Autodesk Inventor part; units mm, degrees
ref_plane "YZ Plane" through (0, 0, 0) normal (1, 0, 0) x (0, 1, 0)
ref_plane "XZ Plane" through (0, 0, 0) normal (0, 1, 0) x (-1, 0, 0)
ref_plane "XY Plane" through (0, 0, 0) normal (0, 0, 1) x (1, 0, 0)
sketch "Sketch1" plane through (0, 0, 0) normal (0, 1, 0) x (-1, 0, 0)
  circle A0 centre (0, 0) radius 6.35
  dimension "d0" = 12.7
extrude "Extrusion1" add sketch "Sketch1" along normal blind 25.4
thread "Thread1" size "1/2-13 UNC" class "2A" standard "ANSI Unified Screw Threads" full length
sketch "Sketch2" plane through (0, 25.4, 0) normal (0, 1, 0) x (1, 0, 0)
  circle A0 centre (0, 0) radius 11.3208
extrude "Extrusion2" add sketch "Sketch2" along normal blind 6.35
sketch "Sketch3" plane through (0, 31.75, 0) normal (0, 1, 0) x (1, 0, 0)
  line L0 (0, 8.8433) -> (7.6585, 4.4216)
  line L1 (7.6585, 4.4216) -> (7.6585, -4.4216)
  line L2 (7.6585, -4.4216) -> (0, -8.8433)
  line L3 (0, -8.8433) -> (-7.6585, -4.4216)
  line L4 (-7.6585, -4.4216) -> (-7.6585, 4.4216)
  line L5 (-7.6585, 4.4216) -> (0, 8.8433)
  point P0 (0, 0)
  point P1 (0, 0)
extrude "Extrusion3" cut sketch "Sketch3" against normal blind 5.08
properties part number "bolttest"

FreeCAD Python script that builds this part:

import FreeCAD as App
import Part
import Sketcher

V = App.Vector
Q = App.Units.Quantity


def add_polygon(sketch, points):
    """Adds a closed chain of lines whose ends are joined by coincident constraints."""
    first, n = sketch.GeometryCount, len(points)
    for a, b in zip(points, points[1:] + points[:1]):
        sketch.addGeometry(Part.LineSegment(App.Vector(*a, 0), App.Vector(*b, 0)), False)
    for i in range(n):
        sketch.addConstraint(Sketcher.Constraint("Coincident", first + i, 2, first + (i + 1) % n, 1))

doc = App.newDocument("Part")
body = doc.addObject("PartDesign::Body", "Body")

# Sketch on XZ plane
sketch1 = doc.addObject("Sketcher::SketchObject", "Sketch")
body.addObject(sketch1)
sketch1.AttachmentSupport = (doc.XZ_Plane, [""])
sketch1.MapMode = "FlatFace"
sketch1.addGeometry(Part.Circle(V(0, 0, 0), V(0, 0, 1), 6), False)
sketch1.addConstraint([
    Sketcher.Constraint("Coincident", 0, 3, -1, 1),
    Sketcher.Constraint("Diameter", 0, Q("0.5 in")),
])
pad1 = doc.addObject("PartDesign::Pad", "Pad")
body.addObject(pad1)
pad1.Profile = sketch1
pad1.Length = Q("1 in")
pad1.Reversed = True

# Sketch on XZ plane
sketch2 = doc.addObject("Sketcher::SketchObject", "Sketch001")
body.addObject(sketch2)
sketch2.AttachmentSupport = (doc.XZ_Plane, [""])
sketch2.MapMode = "FlatFace"
sketch2.AttachmentOffset = App.Placement(V(0, 0, -1 * 25.4), App.Rotation())
sketch2.addGeometry(Part.Circle(V(0, 0, 0), V(0, 0, 1), 11), False)
sketch2.addConstraint([
    Sketcher.Constraint("Coincident", 0, 3, -1, 1),
    Sketcher.Constraint("Diameter", 0, Q("0.8914 in")),
])
pad2 = doc.addObject("PartDesign::Pad", "Pad001")
body.addObject(pad2)
pad2.Profile = sketch2
pad2.Length = Q("0.25 in")
pad2.Reversed = True

# Sketch on XZ plane
sketch3 = doc.addObject("Sketcher::SketchObject", "Sketch002")
body.addObject(sketch3)
sketch3.AttachmentSupport = (doc.XZ_Plane, [""])
sketch3.MapMode = "FlatFace"
sketch3.AttachmentOffset = App.Placement(V(0, 0, -1.25 * 25.4), App.Rotation())
add_polygon(sketch3, [(8, -4), (0, -9), (-8, -4), (-8, 4), (0, 9), (8, 4)])  # lines 0-5
sketch3.addConstraint([
    Sketcher.Constraint("Vertical", 2),
    Sketcher.Constraint("Vertical", 5),
    Sketcher.Constraint("Symmetric", 0, 2, 3, 2, -1, 1),
    Sketcher.Constraint("Symmetric", 1, 2, 4, 2, -1, 1),
    Sketcher.Constraint("PointOnObject", 0, 2, -2),
    Sketcher.Constraint("Parallel", 0, 3),
    Sketcher.Constraint("Horizontal", 2, 2, 4, 2),
    Sketcher.Constraint("Angle", 0, Q("-149.9996 deg")),
    Sketcher.Constraint("DistanceY", 2, 1, 2, 2, Q("8.8432 mm")),
    Sketcher.Constraint("Distance", 0, Q("8.8433 mm")),
])
pocket1 = doc.addObject("PartDesign::Pocket", "Pocket")
body.addObject(pocket1)
pocket1.Profile = sketch3
pocket1.Length = Q("0.2 in")
pocket1.Reversed = True

doc.recompute()
